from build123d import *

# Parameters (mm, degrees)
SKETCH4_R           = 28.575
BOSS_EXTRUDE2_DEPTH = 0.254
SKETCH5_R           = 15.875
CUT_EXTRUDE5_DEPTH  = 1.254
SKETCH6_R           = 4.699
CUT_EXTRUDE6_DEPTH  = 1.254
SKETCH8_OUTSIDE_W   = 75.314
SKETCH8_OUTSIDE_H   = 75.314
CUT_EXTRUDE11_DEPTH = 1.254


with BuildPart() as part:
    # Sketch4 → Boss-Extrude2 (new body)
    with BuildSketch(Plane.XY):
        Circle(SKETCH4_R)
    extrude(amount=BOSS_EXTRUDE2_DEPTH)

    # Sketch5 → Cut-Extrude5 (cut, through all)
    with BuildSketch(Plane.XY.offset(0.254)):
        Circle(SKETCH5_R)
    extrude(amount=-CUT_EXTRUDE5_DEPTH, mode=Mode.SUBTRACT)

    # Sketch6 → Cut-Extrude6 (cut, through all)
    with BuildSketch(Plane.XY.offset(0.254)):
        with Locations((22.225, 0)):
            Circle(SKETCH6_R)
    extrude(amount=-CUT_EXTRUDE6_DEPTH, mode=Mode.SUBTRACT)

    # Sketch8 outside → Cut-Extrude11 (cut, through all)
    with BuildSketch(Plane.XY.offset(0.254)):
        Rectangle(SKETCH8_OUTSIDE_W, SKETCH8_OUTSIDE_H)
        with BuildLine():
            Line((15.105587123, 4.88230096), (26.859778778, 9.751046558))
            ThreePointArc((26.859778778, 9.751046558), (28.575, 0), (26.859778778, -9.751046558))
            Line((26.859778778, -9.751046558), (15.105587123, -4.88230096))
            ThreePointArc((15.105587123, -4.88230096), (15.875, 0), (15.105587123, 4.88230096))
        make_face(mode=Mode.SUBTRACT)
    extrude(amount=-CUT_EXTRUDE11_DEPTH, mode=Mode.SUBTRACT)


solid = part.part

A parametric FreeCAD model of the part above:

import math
import FreeCAD as App
import Part
import Sketcher
from FreeCAD import Vector
Q = App.Units.Quantity

doc = App.newDocument("Part")
params = doc.addObject("Spreadsheet::Sheet", "Params")
for row, (alias, value) in enumerate([
    ("sketch1_diameter", "2.25 in"),
    ("pad1_length", "0.01 in"),
    ("sketch2_diameter", "1.25 in"),
    ("sketch3_diameter", "0.37 in"),
    ("sketch4_radius", "0.625 in"),
    ("sketch4_radius2", "1.125 in"),
], start=1):
    params.set(f"A{row}", alias)
    params.set(f"B{row}", "=" + value)
    params.setAlias(f"B{row}", alias)

body = doc.addObject("PartDesign::Body", "Body")

# Sketch on XY plane
sketch1 = doc.addObject("Sketcher::SketchObject", "Sketch")
body.addObject(sketch1)
sketch1.AttachmentSupport = (doc.XY_Plane, [""])
sketch1.MapMode = "FlatFace"
sketch1.addGeometry(Part.Circle(Vector(0, 0, 0), Vector(0, 0, 1), 29), False)
sketch1.addConstraint([
    Sketcher.Constraint("Coincident", 0, 3, -1, 1),
    Sketcher.Constraint("Diameter", 0, Q("2.25 in")),
])
sketch1.setExpression("Constraints[1]", "Params.sketch1_diameter")
pad1 = doc.addObject("PartDesign::Pad", "Pad")
body.addObject(pad1)
pad1.Profile = sketch1
pad1.setExpression("Length", "Params.pad1_length")

# Sketch on XY plane
sketch2 = doc.addObject("Sketcher::SketchObject", "Sketch001")
body.addObject(sketch2)
sketch2.AttachmentSupport = (doc.XY_Plane, [""])
sketch2.MapMode = "FlatFace"
sketch2.AttachmentOffset = App.Placement(Vector(0, 0, 0.01 * 25.4), App.Rotation())
sketch2.addGeometry(Part.Circle(Vector(0, 0, 0), Vector(0, 0, 1), 16), False)
sketch2.addConstraint([
    Sketcher.Constraint("Coincident", 0, 3, -1, 1),
    Sketcher.Constraint("Diameter", 0, Q("1.25 in")),
])
sketch2.setExpression("Constraints[1]", "Params.sketch2_diameter")
pocket1 = doc.addObject("PartDesign::Pocket", "Pocket")
body.addObject(pocket1)
pocket1.Profile = sketch2
pocket1.Type = "ThroughAll"

# Sketch on XY plane
sketch3 = doc.addObject("Sketcher::SketchObject", "Sketch002")
body.addObject(sketch3)
sketch3.AttachmentSupport = (doc.XY_Plane, [""])
sketch3.MapMode = "FlatFace"
sketch3.AttachmentOffset = App.Placement(Vector(0, 0, 0.01 * 25.4), App.Rotation())
sketch3.addGeometry(Part.Circle(Vector(22.2, 0, 0), Vector(0, 0, 1), 4.7), False)
sketch3.addConstraint([
    Sketcher.Constraint("PointOnObject", 0, 3, -1),
    Sketcher.Constraint("Diameter", 0, Q("0.37 in")),
    Sketcher.Constraint("DistanceX", -1, 1, 0, 3, Q("0.875 in")),
])
sketch3.setExpression("Constraints[1]", "Params.sketch3_diameter")
pocket2 = doc.addObject("PartDesign::Pocket", "Pocket001")
body.addObject(pocket2)
pocket2.Profile = sketch3
pocket2.Type = "ThroughAll"

# Sketch on XY plane
sketch4 = doc.addObject("Sketcher::SketchObject", "Sketch003")
body.addObject(sketch4)
sketch4.AttachmentSupport = (doc.XY_Plane, [""])
sketch4.MapMode = "FlatFace"
sketch4.AttachmentOffset = App.Placement(Vector(0, 0, 0.01 * 25.4), App.Rotation())
sketch4.addGeometry([
    Part.LineSegment(Vector(-38, 38, 0), Vector(-38, -38, 0)),  # 0
    Part.LineSegment(Vector(-38, -38, 0), Vector(38, -38, 0)),  # 1
    Part.LineSegment(Vector(38, -38, 0), Vector(38, 38, 0)),  # 2
    Part.LineSegment(Vector(38, 38, 0), Vector(-38, 38, 0)),  # 3
    Part.ArcOfCircle(Part.Circle(Vector(0, 0, 0), Vector(0, 0, 1), 16), math.radians(-18), math.radians(18)),  # 4
    Part.LineSegment(Vector(15, 5, 0), Vector(27, 10, 0)),  # 5
    Part.ArcOfCircle(Part.Circle(Vector(0, 0, 0), Vector(0, 0, 1), 29), math.radians(-20), math.radians(20)),  # 6
    Part.LineSegment(Vector(27, -10, 0), Vector(15, -5, 0)),  # 7
], False)
sketch4.addConstraint([
    Sketcher.Constraint("Coincident", 0, 2, 1, 1),
    Sketcher.Constraint("Coincident", 1, 2, 2, 1),
    Sketcher.Constraint("Coincident", 2, 2, 3, 1),
    Sketcher.Constraint("Coincident", 3, 2, 0, 1),
    Sketcher.Constraint("Coincident", 4, 2, 5, 1),
    Sketcher.Constraint("Coincident", 5, 2, 6, 2),
    Sketcher.Constraint("Coincident", 6, 1, 7, 1),
    Sketcher.Constraint("Coincident", 7, 2, 4, 1),
    Sketcher.Constraint("Vertical", 0),
    Sketcher.Constraint("Horizontal", 1),
    Sketcher.Constraint("Vertical", 2),
    Sketcher.Constraint("Horizontal", 3),
    Sketcher.Constraint("Coincident", 4, 3, -1, 1),
    Sketcher.Constraint("Coincident", 6, 3, -1, 1),
    Sketcher.Constraint("Symmetric", 0, 2, 2, 2, -1, 1),
    Sketcher.Constraint("Vertical", 5, 2, 6, 1),
    Sketcher.Constraint("Vertical", 4, 2, 7, 2),
    Sketcher.Constraint("Equal", 3, 0),
    Sketcher.Constraint("Radius", 4, Q("0.625 in")),
    Sketcher.Constraint("Radius", 6, Q("1.125 in")),
    Sketcher.Constraint("Angle", 5, Q("22.5 deg")),
    Sketcher.Constraint("DistanceX", 1, 1, 1, 2, Q("75.314 mm")),
    Sketcher.Constraint("DistanceY", -1, 1, 4, 2, Q("4.882301 mm")),
])
sketch4.setExpression("Constraints[18]", "Params.sketch4_radius")
sketch4.setExpression("Constraints[19]", "Params.sketch4_radius2")
pocket3 = doc.addObject("PartDesign::Pocket", "Pocket002")
body.addObject(pocket3)
pocket3.Profile = sketch4
pocket3.Type = "ThroughAll"

doc.recompute()
